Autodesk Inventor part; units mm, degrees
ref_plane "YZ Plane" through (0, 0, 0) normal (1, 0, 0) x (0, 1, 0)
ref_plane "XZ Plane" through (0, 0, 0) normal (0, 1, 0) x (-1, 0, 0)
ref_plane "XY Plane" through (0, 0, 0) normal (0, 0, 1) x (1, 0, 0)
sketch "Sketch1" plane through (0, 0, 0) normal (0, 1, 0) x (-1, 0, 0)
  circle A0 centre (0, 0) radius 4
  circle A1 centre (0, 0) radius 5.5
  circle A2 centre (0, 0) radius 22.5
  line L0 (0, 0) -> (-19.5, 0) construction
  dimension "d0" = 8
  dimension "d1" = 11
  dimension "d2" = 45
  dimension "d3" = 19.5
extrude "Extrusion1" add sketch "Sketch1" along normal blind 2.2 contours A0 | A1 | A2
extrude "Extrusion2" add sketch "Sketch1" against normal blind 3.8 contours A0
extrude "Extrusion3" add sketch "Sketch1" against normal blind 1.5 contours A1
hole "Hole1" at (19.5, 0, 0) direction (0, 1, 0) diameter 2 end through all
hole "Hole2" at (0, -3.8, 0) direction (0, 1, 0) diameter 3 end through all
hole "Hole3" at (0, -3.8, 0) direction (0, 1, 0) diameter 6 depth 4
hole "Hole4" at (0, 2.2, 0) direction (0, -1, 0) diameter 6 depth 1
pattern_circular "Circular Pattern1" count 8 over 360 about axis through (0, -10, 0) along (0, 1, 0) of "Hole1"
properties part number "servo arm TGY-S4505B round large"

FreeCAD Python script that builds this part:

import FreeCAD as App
import Part
import Sketcher
from FreeCAD import Vector

doc = App.newDocument("Part")
params = doc.addObject("Spreadsheet::Sheet", "Params")
for row, (alias, value) in enumerate([
    ("sketch1_diameter", "45 mm"),
    ("pad1_length", "2.2 mm"),
    ("sketch2_diameter", "8 mm"),
    ("pad2_length", "3.8 mm"),
    ("sketch3_diameter", "11 mm"),
    ("sketch3_diameter2", "8 mm"),
    ("pad3_length", "1.5 mm"),
    ("sketch4_diameter", "2 mm"),
    ("hole_diameter", "2 mm"),
    ("sketch5_diameter", "3 mm"),
    ("hole2_diameter", "3 mm"),
    ("sketch6_diameter", "6 mm"),
    ("hole3_diameter", "6 mm"),
    ("hole3_depth", "4 mm"),
    ("sketch7_diameter", "6 mm"),
    ("hole4_diameter", "6 mm"),
    ("hole4_depth", "1 mm"),
], start=1):
    params.set(f"A{row}", alias)
    params.set(f"B{row}", "=" + value)
    params.setAlias(f"B{row}", alias)

body = doc.addObject("PartDesign::Body", "Body")

# Sketch on XZ plane
sketch1 = body.newObject("Sketcher::SketchObject", "Sketch")
sketch1.AttachmentSupport = (doc.getObject("XZ_Plane"), [""])
sketch1.MapMode = "FlatFace"
sketch1.addGeometry(Part.Circle(Vector(0, 0, 0), Vector(0, 0, 1), 22.5), False)
sketch1.addConstraint(Sketcher.Constraint("Coincident", 0, 3, -1, 1))
sketch1.addConstraint(Sketcher.Constraint("Diameter", 0, 45.0))
sketch1.setExpression("Constraints[1]", "Params.sketch1_diameter")
pad1 = body.newObject("PartDesign::Pad", "Pad")
pad1.Profile = sketch1
pad1.setExpression("Length", "Params.pad1_length")
pad1.Reversed = True

# Sketch on XZ plane
sketch2 = body.newObject("Sketcher::SketchObject", "Sketch001")
sketch2.AttachmentSupport = (doc.getObject("XZ_Plane"), [""])
sketch2.MapMode = "FlatFace"
sketch2.addGeometry(Part.Circle(Vector(0, 0, 0), Vector(0, 0, 1), 4), False)
sketch2.addConstraint(Sketcher.Constraint("Coincident", 0, 3, -1, 1))
sketch2.addConstraint(Sketcher.Constraint("Diameter", 0, 8.0))
sketch2.setExpression("Constraints[1]", "Params.sketch2_diameter")
pad2 = body.newObject("PartDesign::Pad", "Pad001")
pad2.Profile = sketch2
pad2.setExpression("Length", "Params.pad2_length")

# Sketch on XZ plane
sketch3 = body.newObject("Sketcher::SketchObject", "Sketch002")
sketch3.AttachmentSupport = (doc.getObject("XZ_Plane"), [""])
sketch3.MapMode = "FlatFace"
sketch3.addGeometry(Part.Circle(Vector(0, 0, 0), Vector(0, 0, 1), 5.5), False)
sketch3.addGeometry(Part.Circle(Vector(0, 0, 0), Vector(0, 0, 1), 4), False)
sketch3.addConstraint(Sketcher.Constraint("Coincident", 0, 3, -1, 1))
sketch3.addConstraint(Sketcher.Constraint("Coincident", 1, 3, -1, 1))
sketch3.addConstraint(Sketcher.Constraint("Diameter", 0, 11.0))
sketch3.addConstraint(Sketcher.Constraint("Diameter", 1, 8.0))
sketch3.setExpression("Constraints[2]", "Params.sketch3_diameter")
sketch3.setExpression("Constraints[3]", "Params.sketch3_diameter2")
pad3 = body.newObject("PartDesign::Pad", "Pad002")
pad3.Profile = sketch3
pad3.setExpression("Length", "Params.pad3_length")

# Sketch on XZ plane
sketch4 = body.newObject("Sketcher::SketchObject", "Sketch003")
sketch4.AttachmentSupport = (doc.getObject("XZ_Plane"), [""])
sketch4.MapMode = "FlatFace"
sketch4.addGeometry(Part.Circle(Vector(19.5, 0, 0), Vector(0, 0, 1), 1), False)
sketch4.addConstraint(Sketcher.Constraint("PointOnObject", 0, 3, -1))
sketch4.addConstraint(Sketcher.Constraint("Diameter", 0, 2.0))
sketch4.addConstraint(Sketcher.Constraint("DistanceX", -1, 1, 0, 3, 19.5))
sketch4.setExpression("Constraints[1]", "Params.sketch4_diameter")
doc.recompute()
hole = body.newObject("PartDesign::Hole", "Hole")
hole.Profile = sketch4
hole.ThreadType = "None"
hole.setExpression("Diameter", "Params.hole_diameter")
hole.DepthType = "ThroughAll"

# Sketch on XZ plane
sketch5 = body.newObject("Sketcher::SketchObject", "Sketch004")
sketch5.AttachmentSupport = (doc.getObject("XZ_Plane"), [""])
sketch5.MapMode = "FlatFace"
sketch5.AttachmentOffset = App.Placement(Vector(0, 0, 3.8), App.Rotation())
sketch5.addGeometry(Part.Circle(Vector(0, 0, 0), Vector(0, 0, 1), 1.5), False)
sketch5.addConstraint(Sketcher.Constraint("Coincident", 0, 3, -1, 1))
sketch5.addConstraint(Sketcher.Constraint("Diameter", 0, 3.0))
sketch5.setExpression("Constraints[1]", "Params.sketch5_diameter")
doc.recompute()
hole2 = body.newObject("PartDesign::Hole", "Hole001")
hole2.Profile = sketch5
hole2.ThreadType = "None"
hole2.setExpression("Diameter", "Params.hole2_diameter")
hole2.DepthType = "ThroughAll"

# Sketch on XZ plane
sketch6 = body.newObject("Sketcher::SketchObject", "Sketch005")
sketch6.AttachmentSupport = (doc.getObject("XZ_Plane"), [""])
sketch6.MapMode = "FlatFace"
sketch6.AttachmentOffset = App.Placement(Vector(0, 0, 3.8), App.Rotation())
sketch6.addGeometry(Part.Circle(Vector(0, 0, 0), Vector(0, 0, 1), 3), False)
sketch6.addConstraint(Sketcher.Constraint("Coincident", 0, 3, -1, 1))
sketch6.addConstraint(Sketcher.Constraint("Diameter", 0, 6.0))
sketch6.setExpression("Constraints[1]", "Params.sketch6_diameter")
doc.recompute()
hole3 = body.newObject("PartDesign::Hole", "Hole002")
hole3.Profile = sketch6
hole3.ThreadType = "None"
hole3.setExpression("Diameter", "Params.hole3_diameter")
hole3.DepthType = "Dimension"
hole3.setExpression("Depth", "Params.hole3_depth")
hole3.DrillPoint = "Flat"

# Sketch on XZ plane
sketch7 = body.newObject("Sketcher::SketchObject", "Sketch006")
sketch7.AttachmentSupport = (doc.getObject("XZ_Plane"), [""])
sketch7.MapMode = "FlatFace"
sketch7.AttachmentOffset = App.Placement(Vector(0, 0, -2.2), App.Rotation())
sketch7.addGeometry(Part.Circle(Vector(0, 0, 0), Vector(0, 0, 1), 3), False)
sketch7.addConstraint(Sketcher.Constraint("Coincident", 0, 3, -1, 1))
sketch7.addConstraint(Sketcher.Constraint("Diameter", 0, 6.0))
sketch7.setExpression("Constraints[1]", "Params.sketch7_diameter")
doc.recompute()
hole4 = body.newObject("PartDesign::Hole", "Hole003")
hole4.Profile = sketch7
hole4.ThreadType = "None"
hole4.setExpression("Diameter", "Params.hole4_diameter")
hole4.DepthType = "Dimension"
hole4.setExpression("Depth", "Params.hole4_depth")
hole4.DrillPoint = "Flat"
hole4.Reversed = True
doc.recompute()

polarpattern = body.newObject("PartDesign::PolarPattern", "PolarPattern")
polarpattern.Originals = [hole]
polarpattern.Axis = (doc.getObject("Y_Axis"), [""])
polarpattern.Angle = 360
polarpattern.Occurrences = 8
body.Tip = polarpattern

doc.recompute()
